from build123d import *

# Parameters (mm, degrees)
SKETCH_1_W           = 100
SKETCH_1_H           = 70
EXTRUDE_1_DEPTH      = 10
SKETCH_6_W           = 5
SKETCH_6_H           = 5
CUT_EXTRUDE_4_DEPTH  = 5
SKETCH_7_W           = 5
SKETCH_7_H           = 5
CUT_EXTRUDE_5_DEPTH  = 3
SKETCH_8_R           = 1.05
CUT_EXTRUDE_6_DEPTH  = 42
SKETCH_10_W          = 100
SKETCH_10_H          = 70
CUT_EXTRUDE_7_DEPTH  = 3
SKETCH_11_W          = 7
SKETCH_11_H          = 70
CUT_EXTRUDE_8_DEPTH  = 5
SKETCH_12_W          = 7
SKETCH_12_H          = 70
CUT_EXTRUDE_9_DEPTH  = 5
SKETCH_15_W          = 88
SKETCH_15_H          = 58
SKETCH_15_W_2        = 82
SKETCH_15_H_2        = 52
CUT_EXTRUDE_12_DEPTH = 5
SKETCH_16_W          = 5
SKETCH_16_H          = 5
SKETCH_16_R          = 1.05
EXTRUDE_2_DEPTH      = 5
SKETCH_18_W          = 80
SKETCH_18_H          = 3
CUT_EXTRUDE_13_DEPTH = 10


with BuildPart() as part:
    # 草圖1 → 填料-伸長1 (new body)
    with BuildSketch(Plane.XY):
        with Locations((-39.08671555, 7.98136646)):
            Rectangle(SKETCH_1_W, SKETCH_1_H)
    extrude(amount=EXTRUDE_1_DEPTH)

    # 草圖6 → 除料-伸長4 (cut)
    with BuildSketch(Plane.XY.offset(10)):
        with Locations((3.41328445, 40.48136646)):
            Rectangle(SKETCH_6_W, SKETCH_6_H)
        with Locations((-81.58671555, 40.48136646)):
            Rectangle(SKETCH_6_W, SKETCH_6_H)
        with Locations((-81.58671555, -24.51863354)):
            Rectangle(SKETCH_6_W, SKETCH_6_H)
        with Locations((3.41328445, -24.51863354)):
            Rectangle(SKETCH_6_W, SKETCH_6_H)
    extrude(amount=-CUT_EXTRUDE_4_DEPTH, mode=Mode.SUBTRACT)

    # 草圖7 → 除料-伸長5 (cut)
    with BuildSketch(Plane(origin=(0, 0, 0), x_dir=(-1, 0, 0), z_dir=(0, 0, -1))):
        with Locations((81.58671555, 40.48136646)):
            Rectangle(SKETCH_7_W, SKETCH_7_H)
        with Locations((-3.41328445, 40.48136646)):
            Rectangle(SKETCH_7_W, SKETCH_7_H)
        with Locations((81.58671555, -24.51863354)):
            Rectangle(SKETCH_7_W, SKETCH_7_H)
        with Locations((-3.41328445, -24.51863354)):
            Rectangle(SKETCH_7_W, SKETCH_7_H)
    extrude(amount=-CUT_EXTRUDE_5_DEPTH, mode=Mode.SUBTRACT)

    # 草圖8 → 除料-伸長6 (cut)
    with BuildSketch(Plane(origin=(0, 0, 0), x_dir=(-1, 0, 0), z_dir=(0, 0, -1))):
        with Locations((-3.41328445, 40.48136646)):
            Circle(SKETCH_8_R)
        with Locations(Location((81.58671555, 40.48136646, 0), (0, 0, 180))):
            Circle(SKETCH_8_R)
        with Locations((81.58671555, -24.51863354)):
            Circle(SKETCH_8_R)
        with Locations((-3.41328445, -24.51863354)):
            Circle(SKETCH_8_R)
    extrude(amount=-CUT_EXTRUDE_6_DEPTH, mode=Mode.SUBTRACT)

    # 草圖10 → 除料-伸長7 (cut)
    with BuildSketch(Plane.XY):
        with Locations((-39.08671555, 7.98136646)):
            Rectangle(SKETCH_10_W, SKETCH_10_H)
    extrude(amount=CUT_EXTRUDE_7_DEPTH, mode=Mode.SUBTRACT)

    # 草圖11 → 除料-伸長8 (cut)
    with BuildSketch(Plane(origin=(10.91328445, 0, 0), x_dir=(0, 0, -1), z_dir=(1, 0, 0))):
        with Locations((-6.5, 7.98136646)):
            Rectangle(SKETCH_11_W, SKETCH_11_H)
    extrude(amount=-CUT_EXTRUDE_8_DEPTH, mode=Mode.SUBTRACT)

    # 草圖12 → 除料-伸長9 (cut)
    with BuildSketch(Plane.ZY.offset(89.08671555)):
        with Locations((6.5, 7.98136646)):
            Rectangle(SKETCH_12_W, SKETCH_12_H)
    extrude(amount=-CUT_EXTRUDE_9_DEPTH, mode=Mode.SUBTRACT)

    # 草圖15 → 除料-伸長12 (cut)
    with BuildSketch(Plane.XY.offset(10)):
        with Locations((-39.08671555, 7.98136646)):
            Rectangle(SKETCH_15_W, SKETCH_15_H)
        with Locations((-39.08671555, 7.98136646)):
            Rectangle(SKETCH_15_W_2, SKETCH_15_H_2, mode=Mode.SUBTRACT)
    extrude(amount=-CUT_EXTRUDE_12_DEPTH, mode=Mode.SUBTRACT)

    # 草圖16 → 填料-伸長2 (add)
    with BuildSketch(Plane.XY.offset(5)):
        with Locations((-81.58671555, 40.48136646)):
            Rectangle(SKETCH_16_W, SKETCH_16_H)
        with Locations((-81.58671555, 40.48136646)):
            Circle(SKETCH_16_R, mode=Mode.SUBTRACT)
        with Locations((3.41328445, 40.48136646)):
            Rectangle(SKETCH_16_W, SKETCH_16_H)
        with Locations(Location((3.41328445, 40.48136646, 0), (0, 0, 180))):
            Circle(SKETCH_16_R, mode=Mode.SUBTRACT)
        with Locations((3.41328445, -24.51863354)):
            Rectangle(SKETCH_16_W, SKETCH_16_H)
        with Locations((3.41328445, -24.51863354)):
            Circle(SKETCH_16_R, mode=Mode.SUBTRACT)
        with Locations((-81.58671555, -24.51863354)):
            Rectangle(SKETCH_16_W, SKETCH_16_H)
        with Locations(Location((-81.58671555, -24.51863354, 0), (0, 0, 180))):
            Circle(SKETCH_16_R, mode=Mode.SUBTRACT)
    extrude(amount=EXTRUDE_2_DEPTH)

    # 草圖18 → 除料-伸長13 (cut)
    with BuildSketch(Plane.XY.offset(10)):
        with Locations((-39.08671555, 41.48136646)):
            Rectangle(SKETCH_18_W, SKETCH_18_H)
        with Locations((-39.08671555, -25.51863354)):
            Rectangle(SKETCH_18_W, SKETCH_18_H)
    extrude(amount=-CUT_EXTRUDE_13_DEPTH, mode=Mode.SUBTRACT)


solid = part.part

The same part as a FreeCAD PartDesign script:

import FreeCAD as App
import Part
import Sketcher
Q = App.Units.Quantity

doc = App.newDocument("Part")
body = doc.addObject("PartDesign::Body", "Body")

# Sketch on XY plane
sketch1 = body.newObject("Sketcher::SketchObject", "Sketch")
sketch1.AttachmentSupport = (doc.getObject("XY_Plane"), [""])
sketch1.MapMode = "FlatFace"
sketch1.addGeometry([
    Part.LineSegment(App.Vector(-89.086716, 42.981366, 0), App.Vector(-89.086716, -27.018634, 0)),
    Part.LineSegment(App.Vector(-89.086716, -27.018634, 0), App.Vector(10.913284, -27.018634, 0)),
    Part.LineSegment(App.Vector(10.913284, -27.018634, 0), App.Vector(10.913284, 42.981366, 0)),
    Part.LineSegment(App.Vector(10.913284, 42.981366, 0), App.Vector(-89.086716, 42.981366, 0)),
], False)
sketch1.addConstraint([
    Sketcher.Constraint("Coincident", 0, 2, 1, 1),
    Sketcher.Constraint("Coincident", 1, 2, 2, 1),
    Sketcher.Constraint("Coincident", 2, 2, 3, 1),
    Sketcher.Constraint("Coincident", 3, 2, 0, 1),
    Sketcher.Constraint("Vertical", 0),
    Sketcher.Constraint("Horizontal", 1),
    Sketcher.Constraint("Vertical", 2),
    Sketcher.Constraint("Horizontal", 3),
    Sketcher.Constraint("DistanceX", 1, 1, 1, 2, Q("100 mm")),
    Sketcher.Constraint("DistanceY", 0, 2, 0, 1, Q("70 mm")),
    Sketcher.Constraint("DistanceX", 0, 2, -1, 1, Q("89.086716 mm")),
    Sketcher.Constraint("DistanceY", 0, 2, -1, 1, Q("27.018634 mm")),
])
pad1 = body.newObject("PartDesign::Pad", "Pad")
pad1.Profile = sketch1
pad1.Length = 10

# Sketch on XY plane
sketch2 = body.newObject("Sketcher::SketchObject", "Sketch001")
sketch2.AttachmentSupport = (doc.getObject("XY_Plane"), [""])
sketch2.MapMode = "FlatFace"
sketch2.AttachmentOffset = App.Placement(App.Vector(0, 0, 10), App.Rotation())
sketch2.addGeometry([
    Part.LineSegment(App.Vector(0.913284, 42.981366, 0), App.Vector(0.913284, 37.981366, 0)),  # 0
    Part.LineSegment(App.Vector(0.913284, 37.981366, 0), App.Vector(5.913284, 37.981366, 0)),  # 1
    Part.LineSegment(App.Vector(5.913284, 37.981366, 0), App.Vector(5.913284, 42.981366, 0)),  # 2
    Part.LineSegment(App.Vector(5.913284, 42.981366, 0), App.Vector(0.913284, 42.981366, 0)),  # 3
    Part.LineSegment(App.Vector(-84.086716, 42.981366, 0), App.Vector(-84.086716, 37.981366, 0)),  # 4
    Part.LineSegment(App.Vector(-84.086716, 37.981366, 0), App.Vector(-79.086716, 37.981366, 0)),  # 5
    Part.LineSegment(App.Vector(-79.086716, 37.981366, 0), App.Vector(-79.086716, 42.981366, 0)),  # 6
    Part.LineSegment(App.Vector(-79.086716, 42.981366, 0), App.Vector(-84.086716, 42.981366, 0)),  # 7
    Part.LineSegment(App.Vector(-84.086716, -22.018634, 0), App.Vector(-84.086716, -27.018634, 0)),  # 8
    Part.LineSegment(App.Vector(-84.086716, -27.018634, 0), App.Vector(-79.086716, -27.018634, 0)),  # 9
    Part.LineSegment(App.Vector(-79.086716, -27.018634, 0), App.Vector(-79.086716, -22.018634, 0)),  # 10
    Part.LineSegment(App.Vector(-79.086716, -22.018634, 0), App.Vector(-84.086716, -22.018634, 0)),  # 11
    Part.LineSegment(App.Vector(0.913284, -22.018634, 0), App.Vector(0.913284, -27.018634, 0)),  # 12
    Part.LineSegment(App.Vector(0.913284, -27.018634, 0), App.Vector(5.913284, -27.018634, 0)),  # 13
    Part.LineSegment(App.Vector(5.913284, -27.018634, 0), App.Vector(5.913284, -22.018634, 0)),  # 14
    Part.LineSegment(App.Vector(5.913284, -22.018634, 0), App.Vector(0.913284, -22.018634, 0)),  # 15
], False)
sketch2.addConstraint([
    Sketcher.Constraint("Coincident", 0, 2, 1, 1),
    Sketcher.Constraint("Coincident", 1, 2, 2, 1),
    Sketcher.Constraint("Coincident", 2, 2, 3, 1),
    Sketcher.Constraint("Coincident", 3, 2, 0, 1),
    Sketcher.Constraint("Coincident", 4, 2, 5, 1),
    Sketcher.Constraint("Coincident", 5, 2, 6, 1),
    Sketcher.Constraint("Coincident", 6, 2, 7, 1),
    Sketcher.Constraint("Coincident", 7, 2, 4, 1),
    Sketcher.Constraint("Coincident", 8, 2, 9, 1),
    Sketcher.Constraint("Coincident", 9, 2, 10, 1),
    Sketcher.Constraint("Coincident", 10, 2, 11, 1),
    Sketcher.Constraint("Coincident", 11, 2, 8, 1),
    Sketcher.Constraint("Coincident", 12, 2, 13, 1),
    Sketcher.Constraint("Coincident", 13, 2, 14, 1),
    Sketcher.Constraint("Coincident", 14, 2, 15, 1),
    Sketcher.Constraint("Coincident", 15, 2, 12, 1),
    Sketcher.Constraint("Vertical", 0),
    Sketcher.Constraint("Horizontal", 1),
    Sketcher.Constraint("Vertical", 2),
    Sketcher.Constraint("Horizontal", 3),
    Sketcher.Constraint("Vertical", 4),
    Sketcher.Constraint("Horizontal", 5),
    Sketcher.Constraint("Vertical", 6),
    Sketcher.Constraint("Horizontal", 7),
    Sketcher.Constraint("Vertical", 8),
    Sketcher.Constraint("Horizontal", 9),
    Sketcher.Constraint("Vertical", 10),
    Sketcher.Constraint("Horizontal", 11),
    Sketcher.Constraint("Vertical", 12),
    Sketcher.Constraint("Horizontal", 13),
    Sketcher.Constraint("Vertical", 14),
    Sketcher.Constraint("Horizontal", 15),
    Sketcher.Constraint("Horizontal", 1, 2, 4, 2),
    Sketcher.Constraint("Horizontal", 3, 2, 6, 2),
    Sketcher.Constraint("Horizontal", 9, 2, 12, 2),
    Sketcher.Constraint("Horizontal", 11, 2, 14, 2),
    Sketcher.Constraint("Vertical", 7, 2, 8, 2),
    Sketcher.Constraint("Vertical", 6, 2, 9, 2),
    Sketcher.Constraint("Vertical", 3, 2, 12, 2),
    Sketcher.Constraint("Vertical", 2, 2, 13, 2),
    Sketcher.Constraint("Equal", 3, 5),
    Sketcher.Constraint("Equal", 15, 0),
    Sketcher.Constraint("Equal", 6, 8),
    Sketcher.Constraint("DistanceX", 1, 1, 1, 2, Q("5 mm")),
    Sketcher.Constraint("DistanceX", 4, 2, 0, 2, Q("85 mm")),
    Sketcher.Constraint("DistanceY", 8, 2, 4, 2, Q("65 mm")),
    Sketcher.Constraint("DistanceX", -1, 1, 0, 2, Q("0.913284 mm")),
    Sketcher.Constraint("DistanceY", -1, 1, 0, 2, Q("37.981366 mm")),
])
pocket1 = body.newObject("PartDesign::Pocket", "Pocket")
pocket1.Profile = sketch2
pocket1.Length = 5

# Sketch on XY plane
sketch3 = body.newObject("Sketcher::SketchObject", "Sketch002")
sketch3.AttachmentSupport = (doc.getObject("XY_Plane"), [""])
sketch3.MapMode = "FlatFace"
sketch3.addGeometry([
    Part.LineSegment(App.Vector(-79.086716, 42.981366, 0), App.Vector(-79.086716, 37.981366, 0)),  # 0
    Part.LineSegment(App.Vector(-79.086716, 37.981366, 0), App.Vector(-84.086716, 37.981366, 0)),  # 1
    Part.LineSegment(App.Vector(-84.086716, 37.981366, 0), App.Vector(-84.086716, 42.981366, 0)),  # 2
    Part.LineSegment(App.Vector(-84.086716, 42.981366, 0), App.Vector(-79.086716, 42.981366, 0)),  # 3
    Part.LineSegment(App.Vector(5.913284, 42.981366, 0), App.Vector(5.913284, 37.981366, 0)),  # 4
    Part.LineSegment(App.Vector(5.913284, 37.981366, 0), App.Vector(0.913284, 37.981366, 0)),  # 5
    Part.LineSegment(App.Vector(0.913284, 37.981366, 0), App.Vector(0.913284, 42.981366, 0)),  # 6
    Part.LineSegment(App.Vector(0.913284, 42.981366, 0), App.Vector(5.913284, 42.981366, 0)),  # 7
    Part.LineSegment(App.Vector(-79.086716, -22.018634, 0), App.Vector(-79.086716, -27.018634, 0)),  # 8
    Part.LineSegment(App.Vector(-79.086716, -27.018634, 0), App.Vector(-84.086716, -27.018634, 0)),  # 9
    Part.LineSegment(App.Vector(-84.086716, -27.018634, 0), App.Vector(-84.086716, -22.018634, 0)),  # 10
    Part.LineSegment(App.Vector(-84.086716, -22.018634, 0), App.Vector(-79.086716, -22.018634, 0)),  # 11
    Part.LineSegment(App.Vector(5.913284, -22.018634, 0), App.Vector(5.913284, -27.018634, 0)),  # 12
    Part.LineSegment(App.Vector(5.913284, -27.018634, 0), App.Vector(0.913284, -27.018634, 0)),  # 13
    Part.LineSegment(App.Vector(0.913284, -27.018634, 0), App.Vector(0.913284, -22.018634, 0)),  # 14
    Part.LineSegment(App.Vector(0.913284, -22.018634, 0), App.Vector(5.913284, -22.018634, 0)),  # 15
], False)
sketch3.addConstraint([
    Sketcher.Constraint("Coincident", 0, 2, 1, 1),
    Sketcher.Constraint("Coincident", 1, 2, 2, 1),
    Sketcher.Constraint("Coincident", 2, 2, 3, 1),
    Sketcher.Constraint("Coincident", 3, 2, 0, 1),
    Sketcher.Constraint("Coincident", 4, 2, 5, 1),
    Sketcher.Constraint("Coincident", 5, 2, 6, 1),
    Sketcher.Constraint("Coincident", 6, 2, 7, 1),
    Sketcher.Constraint("Coincident", 7, 2, 4, 1),
    Sketcher.Constraint("Coincident", 8, 2, 9, 1),
    Sketcher.Constraint("Coincident", 9, 2, 10, 1),
    Sketcher.Constraint("Coincident", 10, 2, 11, 1),
    Sketcher.Constraint("Coincident", 11, 2, 8, 1),
    Sketcher.Constraint("Coincident", 12, 2, 13, 1),
    Sketcher.Constraint("Coincident", 13, 2, 14, 1),
    Sketcher.Constraint("Coincident", 14, 2, 15, 1),
    Sketcher.Constraint("Coincident", 15, 2, 12, 1),
    Sketcher.Constraint("Vertical", 0),
    Sketcher.Constraint("Horizontal", 1),
    Sketcher.Constraint("Vertical", 2),
    Sketcher.Constraint("Horizontal", 3),
    Sketcher.Constraint("Vertical", 4),
    Sketcher.Constraint("Horizontal", 5),
    Sketcher.Constraint("Vertical", 6),
    Sketcher.Constraint("Horizontal", 7),
    Sketcher.Constraint("Vertical", 8),
    Sketcher.Constraint("Horizontal", 9),
    Sketcher.Constraint("Vertical", 10),
    Sketcher.Constraint("Horizontal", 11),
    Sketcher.Constraint("Vertical", 12),
    Sketcher.Constraint("Horizontal", 13),
    Sketcher.Constraint("Vertical", 14),
    Sketcher.Constraint("Horizontal", 15),
    Sketcher.Constraint("Horizontal", 1, 2, 4, 2),
    Sketcher.Constraint("Horizontal", 3, 2, 6, 2),
    Sketcher.Constraint("Horizontal", 9, 2, 12, 2),
    Sketcher.Constraint("Horizontal", 11, 2, 14, 2),
    Sketcher.Constraint("Vertical", 3, 2, 8, 2),
    Sketcher.Constraint("Vertical", 2, 2, 9, 2),
    Sketcher.Constraint("Vertical", 7, 2, 12, 2),
    Sketcher.Constraint("Vertical", 6, 2, 13, 2),
    Sketcher.Constraint("Equal", 3, 5),
    Sketcher.Constraint("Equal", 15, 0),
    Sketcher.Constraint("Equal", 6, 8),
    Sketcher.Constraint("DistanceX", 1, 2, 1, 1, Q("5 mm")),
    Sketcher.Constraint("DistanceX", 0, 2, 4, 2, Q("85 mm")),
    Sketcher.Constraint("DistanceY", 8, 2, 0, 2, Q("65 mm")),
    Sketcher.Constraint("DistanceX", 0, 2, -1, 1, Q("79.086716 mm")),
    Sketcher.Constraint("DistanceY", -1, 1, 0, 2, Q("37.981366 mm")),
])
pocket2 = body.newObject("PartDesign::Pocket", "Pocket001")
pocket2.Profile = sketch3
pocket2.Length = 3
pocket2.Reversed = True

# Sketch on XY plane
sketch4 = body.newObject("Sketcher::SketchObject", "Sketch003")
sketch4.AttachmentSupport = (doc.getObject("XY_Plane"), [""])
sketch4.MapMode = "FlatFace"
sketch4.addGeometry([
    Part.Circle(App.Vector(3.413284, 40.481366, 0), App.Vector(0, 0, 1), 1.05),
    Part.Circle(App.Vector(-81.586716, 40.481366, 0), App.Vector(0, 0, 1), 1.05),
    Part.Circle(App.Vector(-81.586716, -24.518634, 0), App.Vector(0, 0, 1), 1.05),
    Part.Circle(App.Vector(3.413284, -24.518634, 0), App.Vector(0, 0, 1), 1.05),
], False)
sketch4.addConstraint([
    Sketcher.Constraint("Equal", 0, 1),
    Sketcher.Constraint("Equal", 1, 2),
    Sketcher.Constraint("Equal", 2, 3),
    Sketcher.Constraint("Horizontal", 0, 3, 1, 3),
    Sketcher.Constraint("Horizontal", 2, 3, 3, 3),
    Sketcher.Constraint("Vertical", 1, 3, 2, 3),
    Sketcher.Constraint("Vertical", 0, 3, 3, 3),
    Sketcher.Constraint("Diameter", 0, Q("2.1 mm")),
    Sketcher.Constraint("DistanceX", 1, 3, 0, 3, Q("85 mm")),
    Sketcher.Constraint("DistanceY", 2, 3, 1, 3, Q("65 mm")),
    Sketcher.Constraint("DistanceX", -1, 1, 0, 3, Q("3.413284 mm")),
    Sketcher.Constraint("DistanceY", -1, 1, 0, 3, Q("40.481366 mm")),
])
pocket3 = body.newObject("PartDesign::Pocket", "Pocket002")
pocket3.Profile = sketch4
pocket3.Length = 42
pocket3.Reversed = True

# Sketch on XY plane
sketch5 = body.newObject("Sketcher::SketchObject", "Sketch004")
sketch5.AttachmentSupport = (doc.getObject("XY_Plane"), [""])
sketch5.MapMode = "FlatFace"
sketch5.addGeometry([
    Part.LineSegment(App.Vector(-89.086716, 42.981366, 0), App.Vector(-89.086716, -27.018634, 0)),
    Part.LineSegment(App.Vector(-89.086716, -27.018634, 0), App.Vector(10.913284, -27.018634, 0)),
    Part.LineSegment(App.Vector(10.913284, -27.018634, 0), App.Vector(10.913284, 42.981366, 0)),
    Part.LineSegment(App.Vector(10.913284, 42.981366, 0), App.Vector(-89.086716, 42.981366, 0)),
], False)
sketch5.addConstraint([
    Sketcher.Constraint("Coincident", 0, 2, 1, 1),
    Sketcher.Constraint("Coincident", 1, 2, 2, 1),
    Sketcher.Constraint("Coincident", 2, 2, 3, 1),
    Sketcher.Constraint("Coincident", 3, 2, 0, 1),
    Sketcher.Constraint("Vertical", 0),
    Sketcher.Constraint("Horizontal", 1),
    Sketcher.Constraint("Vertical", 2),
    Sketcher.Constraint("Horizontal", 3),
    Sketcher.Constraint("DistanceX", 1, 1, 1, 2, Q("100 mm")),
    Sketcher.Constraint("DistanceY", 0, 2, 0, 1, Q("70 mm")),
    Sketcher.Constraint("DistanceX", 0, 2, -1, 1, Q("89.086716 mm")),
    Sketcher.Constraint("DistanceY", 0, 2, -1, 1, Q("27.018634 mm")),
])
pocket4 = body.newObject("PartDesign::Pocket", "Pocket003")
pocket4.Profile = sketch5
pocket4.Length = 3
pocket4.Reversed = True

# Sketch on YZ plane
sketch6 = body.newObject("Sketcher::SketchObject", "Sketch005")
sketch6.AttachmentSupport = (doc.getObject("YZ_Plane"), [""])
sketch6.MapMode = "FlatFace"
sketch6.AttachmentOffset = App.Placement(App.Vector(0, 0, 10.913284), App.Rotation())
sketch6.addGeometry([
    Part.LineSegment(App.Vector(42.981366, 10, 0), App.Vector(-27.018634, 10, 0)),
    Part.LineSegment(App.Vector(-27.018634, 10, 0), App.Vector(-27.018634, 3, 0)),
    Part.LineSegment(App.Vector(-27.018634, 3, 0), App.Vector(42.981366, 3, 0)),
    Part.LineSegment(App.Vector(42.981366, 3, 0), App.Vector(42.981366, 10, 0)),
], False)
sketch6.addConstraint([
    Sketcher.Constraint("Coincident", 0, 2, 1, 1),
    Sketcher.Constraint("Coincident", 1, 2, 2, 1),
    Sketcher.Constraint("Coincident", 2, 2, 3, 1),
    Sketcher.Constraint("Coincident", 3, 2, 0, 1),
    Sketcher.Constraint("Horizontal", 0),
    Sketcher.Constraint("Vertical", 1),
    Sketcher.Constraint("Horizontal", 2),
    Sketcher.Constraint("Vertical", 3),
    Sketcher.Constraint("DistanceX", 0, 2, 0, 1, Q("70 mm")),
    Sketcher.Constraint("DistanceY", 1, 2, 1, 1, Q("7 mm")),
    Sketcher.Constraint("DistanceY", -1, 1, 0, 2, Q("10 mm")),
    Sketcher.Constraint("DistanceX", 0, 2, -1, 1, Q("27.018634 mm")),
])
pocket5 = body.newObject("PartDesign::Pocket", "Pocket004")
pocket5.Profile = sketch6
pocket5.Length = 5

# Sketch on YZ plane
sketch7 = body.newObject("Sketcher::SketchObject", "Sketch006")
sketch7.AttachmentSupport = (doc.getObject("YZ_Plane"), [""])
sketch7.MapMode = "FlatFace"
sketch7.AttachmentOffset = App.Placement(App.Vector(0, 0, -89.086716), App.Rotation())
sketch7.addGeometry([
    Part.LineSegment(App.Vector(42.981366, 3, 0), App.Vector(-27.018634, 3, 0)),
    Part.LineSegment(App.Vector(-27.018634, 3, 0), App.Vector(-27.018634, 10, 0)),
    Part.LineSegment(App.Vector(-27.018634, 10, 0), App.Vector(42.981366, 10, 0)),
    Part.LineSegment(App.Vector(42.981366, 10, 0), App.Vector(42.981366, 3, 0)),
], False)
sketch7.addConstraint([
    Sketcher.Constraint("Coincident", 0, 2, 1, 1),
    Sketcher.Constraint("Coincident", 1, 2, 2, 1),
    Sketcher.Constraint("Coincident", 2, 2, 3, 1),
    Sketcher.Constraint("Coincident", 3, 2, 0, 1),
    Sketcher.Constraint("Horizontal", 0),
    Sketcher.Constraint("Vertical", 1),
    Sketcher.Constraint("Horizontal", 2),
    Sketcher.Constraint("Vertical", 3),
    Sketcher.Constraint("DistanceX", 0, 2, 0, 1, Q("70 mm")),
    Sketcher.Constraint("DistanceY", 1, 1, 1, 2, Q("7 mm")),
    Sketcher.Constraint("DistanceY", -1, 1, 0, 2, Q("3 mm")),
    Sketcher.Constraint("DistanceX", 0, 2, -1, 1, Q("27.018634 mm")),
])
pocket6 = body.newObject("PartDesign::Pocket", "Pocket005")
pocket6.Profile = sketch7
pocket6.Length = 5
pocket6.Reversed = True

# Sketch on XY plane
sketch8 = body.newObject("Sketcher::SketchObject", "Sketch007")
sketch8.AttachmentSupport = (doc.getObject("XY_Plane"), [""])
sketch8.MapMode = "FlatFace"
sketch8.AttachmentOffset = App.Placement(App.Vector(0, 0, 10), App.Rotation())
sketch8.addGeometry([
    Part.LineSegment(App.Vector(-83.086716, 36.981366, 0), App.Vector(-83.086716, -21.018634, 0)),  # 0
    Part.LineSegment(App.Vector(-83.086716, -21.018634, 0), App.Vector(4.913284, -21.018634, 0)),  # 1
    Part.LineSegment(App.Vector(4.913284, -21.018634, 0), App.Vector(4.913284, 36.981366, 0)),  # 2
    Part.LineSegment(App.Vector(4.913284, 36.981366, 0), App.Vector(-83.086716, 36.981366, 0)),  # 3
    Part.LineSegment(App.Vector(1.913284, -18.018634, 0), App.Vector(-80.086716, -18.018634, 0)),  # 4
    Part.LineSegment(App.Vector(-80.086716, -18.018634, 0), App.Vector(-80.086716, 33.981366, 0)),  # 5
    Part.LineSegment(App.Vector(-80.086716, 33.981366, 0), App.Vector(1.913284, 33.981366, 0)),  # 6
    Part.LineSegment(App.Vector(1.913284, 33.981366, 0), App.Vector(1.913284, -18.018634, 0)),  # 7
], False)
sketch8.addConstraint([
    Sketcher.Constraint("Coincident", 0, 2, 1, 1),
    Sketcher.Constraint("Coincident", 1, 2, 2, 1),
    Sketcher.Constraint("Coincident", 2, 2, 3, 1),
    Sketcher.Constraint("Coincident", 3, 2, 0, 1),
    Sketcher.Constraint("Coincident", 4, 2, 5, 1),
    Sketcher.Constraint("Coincident", 5, 2, 6, 1),
    Sketcher.Constraint("Coincident", 6, 2, 7, 1),
    Sketcher.Constraint("Coincident", 7, 2, 4, 1),
    Sketcher.Constraint("Vertical", 0),
    Sketcher.Constraint("Horizontal", 1),
    Sketcher.Constraint("Vertical", 2),
    Sketcher.Constraint("Horizontal", 3),
    Sketcher.Constraint("Horizontal", 4),
    Sketcher.Constraint("Vertical", 5),
    Sketcher.Constraint("Horizontal", 6),
    Sketcher.Constraint("Vertical", 7),
    Sketcher.Constraint("DistanceX", 1, 1, 1, 2, Q("88 mm")),
    Sketcher.Constraint("DistanceX", 4, 2, 4, 1, Q("82 mm")),
    Sketcher.Constraint("DistanceY", 0, 2, 0, 1, Q("58 mm")),
    Sketcher.Constraint("DistanceY", 5, 1, 5, 2, Q("52 mm")),
    Sketcher.Constraint("DistanceX", 0, 2, 4, 2, Q("3 mm")),
    Sketcher.Constraint("DistanceY", 0, 2, 4, 2, Q("3 mm")),
    Sketcher.Constraint("DistanceX", 0, 2, -1, 1, Q("83.086716 mm")),
    Sketcher.Constraint("DistanceY", 0, 2, -1, 1, Q("21.018634 mm")),
])
pocket7 = body.newObject("PartDesign::Pocket", "Pocket006")
pocket7.Profile = sketch8
pocket7.Length = 5

# Sketch on XY plane
sketch9 = body.newObject("Sketcher::SketchObject", "Sketch008")
sketch9.AttachmentSupport = (doc.getObject("XY_Plane"), [""])
sketch9.MapMode = "FlatFace"
sketch9.AttachmentOffset = App.Placement(App.Vector(0, 0, 5), App.Rotation())
sketch9.addGeometry([
    Part.LineSegment(App.Vector(-84.086716, 42.981366, 0), App.Vector(-84.086716, 37.981366, 0)),  # 0
    Part.LineSegment(App.Vector(-84.086716, 37.981366, 0), App.Vector(-79.086716, 37.981366, 0)),  # 1
    Part.LineSegment(App.Vector(-79.086716, 37.981366, 0), App.Vector(-79.086716, 42.981366, 0)),  # 2
    Part.LineSegment(App.Vector(-79.086716, 42.981366, 0), App.Vector(-84.086716, 42.981366, 0)),  # 3
    Part.Circle(App.Vector(-81.586716, 40.481366, 0), App.Vector(0, 0, 1), 1.05),  # 4
    Part.LineSegment(App.Vector(0.913284, 42.981366, 0), App.Vector(0.913284, 37.981366, 0)),  # 5
    Part.LineSegment(App.Vector(0.913284, 37.981366, 0), App.Vector(5.913284, 37.981366, 0)),  # 6
    Part.LineSegment(App.Vector(5.913284, 37.981366, 0), App.Vector(5.913284, 42.981366, 0)),  # 7
    Part.LineSegment(App.Vector(5.913284, 42.981366, 0), App.Vector(0.913284, 42.981366, 0)),  # 8
    Part.Circle(App.Vector(3.413284, 40.481366, 0), App.Vector(0, 0, 1), 1.05),  # 9
    Part.LineSegment(App.Vector(0.913284, -22.018634, 0), App.Vector(0.913284, -27.018634, 0)),  # 10
    Part.LineSegment(App.Vector(0.913284, -27.018634, 0), App.Vector(5.913284, -27.018634, 0)),  # 11
    Part.LineSegment(App.Vector(5.913284, -27.018634, 0), App.Vector(5.913284, -22.018634, 0)),  # 12
    Part.LineSegment(App.Vector(5.913284, -22.018634, 0), App.Vector(0.913284, -22.018634, 0)),  # 13
    Part.Circle(App.Vector(3.413284, -24.518634, 0), App.Vector(0, 0, 1), 1.05),  # 14
    Part.LineSegment(App.Vector(-84.086716, -22.018634, 0), App.Vector(-84.086716, -27.018634, 0)),  # 15
    Part.LineSegment(App.Vector(-84.086716, -27.018634, 0), App.Vector(-79.086716, -27.018634, 0)),  # 16
    Part.LineSegment(App.Vector(-79.086716, -27.018634, 0), App.Vector(-79.086716, -22.018634, 0)),  # 17
    Part.LineSegment(App.Vector(-79.086716, -22.018634, 0), App.Vector(-84.086716, -22.018634, 0)),  # 18
    Part.Circle(App.Vector(-81.586716, -24.518634, 0), App.Vector(0, 0, 1), 1.05),  # 19
], False)
sketch9.addConstraint([
    Sketcher.Constraint("Coincident", 0, 2, 1, 1),
    Sketcher.Constraint("Coincident", 1, 2, 2, 1),
    Sketcher.Constraint("Coincident", 2, 2, 3, 1),
    Sketcher.Constraint("Coincident", 3, 2, 0, 1),
    Sketcher.Constraint("Coincident", 5, 2, 6, 1),
    Sketcher.Constraint("Coincident", 6, 2, 7, 1),
    Sketcher.Constraint("Coincident", 7, 2, 8, 1),
    Sketcher.Constraint("Coincident", 8, 2, 5, 1),
    Sketcher.Constraint("Coincident", 10, 2, 11, 1),
    Sketcher.Constraint("Coincident", 11, 2, 12, 1),
    Sketcher.Constraint("Coincident", 12, 2, 13, 1),
    Sketcher.Constraint("Coincident", 13, 2, 10, 1),
    Sketcher.Constraint("Coincident", 15, 2, 16, 1),
    Sketcher.Constraint("Coincident", 16, 2, 17, 1),
    Sketcher.Constraint("Coincident", 17, 2, 18, 1),
    Sketcher.Constraint("Coincident", 18, 2, 15, 1),
    Sketcher.Constraint("Vertical", 0),
    Sketcher.Constraint("Horizontal", 1),
    Sketcher.Constraint("Vertical", 2),
    Sketcher.Constraint("Horizontal", 3),
    Sketcher.Constraint("Vertical", 5),
    Sketcher.Constraint("Horizontal", 6),
    Sketcher.Constraint("Vertical", 7),
    Sketcher.Constraint("Horizontal", 8),
    Sketcher.Constraint("Vertical", 10),
    Sketcher.Constraint("Horizontal", 11),
    Sketcher.Constraint("Vertical", 12),
    Sketcher.Constraint("Horizontal", 13),
    Sketcher.Constraint("Vertical", 15),
    Sketcher.Constraint("Horizontal", 16),
    Sketcher.Constraint("Vertical", 17),
    Sketcher.Constraint("Horizontal", 18),
    Sketcher.Constraint("Equal", 4, 9),
    Sketcher.Constraint("Equal", 9, 14),
    Sketcher.Constraint("Equal", 14, 19),
    Sketcher.Constraint("Horizontal", 4, 3, 9, 3),
    Sketcher.Constraint("Horizontal", 14, 3, 19, 3),
    Sketcher.Constraint("Horizontal", 1, 2, 5, 2),
    Sketcher.Constraint("Horizontal", 3, 2, 7, 2),
    Sketcher.Constraint("Horizontal", 11, 2, 15, 2),
    Sketcher.Constraint("Horizontal", 13, 2, 17, 2),
    Sketcher.Constraint("Vertical", 9, 3, 14, 3),
    Sketcher.Constraint("Vertical", 4, 3, 19, 3),
    Sketcher.Constraint("Vertical", 8, 2, 10, 2),
    Sketcher.Constraint("Vertical", 7, 2, 11, 2),
    Sketcher.Constraint("Vertical", 3, 2, 15, 2),
    Sketcher.Constraint("Vertical", 2, 2, 16, 2),
    Sketcher.Constraint("Equal", 3, 6),
    Sketcher.Constraint("Equal", 18, 0),
    Sketcher.Constraint("Equal", 7, 10),
    Sketcher.Constraint("Diameter", 4, Q("2.1 mm")),
    Sketcher.Constraint("DistanceX", 1, 1, 1, 2, Q("5 mm")),
    Sketcher.Constraint("DistanceX", 4, 3, 9, 3, Q("85 mm")),
    Sketcher.Constraint("DistanceY", 14, 3, 9, 3, Q("65 mm")),
    Sketcher.Constraint("DistanceX", 1, 2, 5, 2, Q("80 mm")),
    Sketcher.Constraint("DistanceY", 10, 2, 5, 2, Q("65 mm")),
    Sketcher.Constraint("DistanceX", 0, 2, 4, 3, Q("2.5 mm")),
    Sketcher.Constraint("DistanceY", 0, 2, 4, 3, Q("2.5 mm")),
    Sketcher.Constraint("DistanceX", 4, 3, -1, 1, Q("81.586716 mm")),
    Sketcher.Constraint("DistanceY", -1, 1, 4, 3, Q("40.481366 mm")),
])
pad2 = body.newObject("PartDesign::Pad", "Pad001")
pad2.Profile = sketch9
pad2.Length = 5

# Sketch on XY plane
sketch10 = body.newObject("Sketcher::SketchObject", "Sketch009")
sketch10.AttachmentSupport = (doc.getObject("XY_Plane"), [""])
sketch10.MapMode = "FlatFace"
sketch10.AttachmentOffset = App.Placement(App.Vector(0, 0, 10), App.Rotation())
sketch10.addGeometry([
    Part.LineSegment(App.Vector(-79.086716, 42.981366, 0), App.Vector(-79.086716, 39.981366, 0)),  # 0
    Part.LineSegment(App.Vector(-79.086716, 39.981366, 0), App.Vector(0.913284, 39.981366, 0)),  # 1
    Part.LineSegment(App.Vector(0.913284, 39.981366, 0), App.Vector(0.913284, 42.981366, 0)),  # 2
    Part.LineSegment(App.Vector(0.913284, 42.981366, 0), App.Vector(-79.086716, 42.981366, 0)),  # 3
    Part.LineSegment(App.Vector(-79.086716, -24.018634, 0), App.Vector(-79.086716, -27.018634, 0)),  # 4
    Part.LineSegment(App.Vector(-79.086716, -27.018634, 0), App.Vector(0.913284, -27.018634, 0)),  # 5
    Part.LineSegment(App.Vector(0.913284, -27.018634, 0), App.Vector(0.913284, -24.018634, 0)),  # 6
    Part.LineSegment(App.Vector(0.913284, -24.018634, 0), App.Vector(-79.086716, -24.018634, 0)),  # 7
], False)
sketch10.addConstraint([
    Sketcher.Constraint("Coincident", 0, 2, 1, 1),
    Sketcher.Constraint("Coincident", 1, 2, 2, 1),
    Sketcher.Constraint("Coincident", 2, 2, 3, 1),
    Sketcher.Constraint("Coincident", 3, 2, 0, 1),
    Sketcher.Constraint("Coincident", 4, 2, 5, 1),
    Sketcher.Constraint("Coincident", 5, 2, 6, 1),
    Sketcher.Constraint("Coincident", 6, 2, 7, 1),
    Sketcher.Constraint("Coincident", 7, 2, 4, 1),
    Sketcher.Constraint("Vertical", 0),
    Sketcher.Constraint("Horizontal", 1),
    Sketcher.Constraint("Vertical", 2),
    Sketcher.Constraint("Horizontal", 3),
    Sketcher.Constraint("Vertical", 4),
    Sketcher.Constraint("Horizontal", 5),
    Sketcher.Constraint("Vertical", 6),
    Sketcher.Constraint("Horizontal", 7),
    Sketcher.Constraint("Vertical", 3, 2, 4, 2),
    Sketcher.Constraint("Vertical", 2, 2, 5, 2),
    Sketcher.Constraint("Equal", 2, 4),
    Sketcher.Constraint("DistanceX", 1, 1, 1, 2, Q("80 mm")),
    Sketcher.Constraint("DistanceY", 0, 2, 0, 1, Q("3 mm")),
    Sketcher.Constraint("DistanceY", 4, 2, 0, 2, Q("67 mm")),
    Sketcher.Constraint("DistanceX", 0, 2, -1, 1, Q("79.086716 mm")),
    Sketcher.Constraint("DistanceY", -1, 1, 0, 2, Q("39.981366 mm")),
])
pocket8 = body.newObject("PartDesign::Pocket", "Pocket007")
pocket8.Profile = sketch10
pocket8.Length = 10

doc.recompute()
